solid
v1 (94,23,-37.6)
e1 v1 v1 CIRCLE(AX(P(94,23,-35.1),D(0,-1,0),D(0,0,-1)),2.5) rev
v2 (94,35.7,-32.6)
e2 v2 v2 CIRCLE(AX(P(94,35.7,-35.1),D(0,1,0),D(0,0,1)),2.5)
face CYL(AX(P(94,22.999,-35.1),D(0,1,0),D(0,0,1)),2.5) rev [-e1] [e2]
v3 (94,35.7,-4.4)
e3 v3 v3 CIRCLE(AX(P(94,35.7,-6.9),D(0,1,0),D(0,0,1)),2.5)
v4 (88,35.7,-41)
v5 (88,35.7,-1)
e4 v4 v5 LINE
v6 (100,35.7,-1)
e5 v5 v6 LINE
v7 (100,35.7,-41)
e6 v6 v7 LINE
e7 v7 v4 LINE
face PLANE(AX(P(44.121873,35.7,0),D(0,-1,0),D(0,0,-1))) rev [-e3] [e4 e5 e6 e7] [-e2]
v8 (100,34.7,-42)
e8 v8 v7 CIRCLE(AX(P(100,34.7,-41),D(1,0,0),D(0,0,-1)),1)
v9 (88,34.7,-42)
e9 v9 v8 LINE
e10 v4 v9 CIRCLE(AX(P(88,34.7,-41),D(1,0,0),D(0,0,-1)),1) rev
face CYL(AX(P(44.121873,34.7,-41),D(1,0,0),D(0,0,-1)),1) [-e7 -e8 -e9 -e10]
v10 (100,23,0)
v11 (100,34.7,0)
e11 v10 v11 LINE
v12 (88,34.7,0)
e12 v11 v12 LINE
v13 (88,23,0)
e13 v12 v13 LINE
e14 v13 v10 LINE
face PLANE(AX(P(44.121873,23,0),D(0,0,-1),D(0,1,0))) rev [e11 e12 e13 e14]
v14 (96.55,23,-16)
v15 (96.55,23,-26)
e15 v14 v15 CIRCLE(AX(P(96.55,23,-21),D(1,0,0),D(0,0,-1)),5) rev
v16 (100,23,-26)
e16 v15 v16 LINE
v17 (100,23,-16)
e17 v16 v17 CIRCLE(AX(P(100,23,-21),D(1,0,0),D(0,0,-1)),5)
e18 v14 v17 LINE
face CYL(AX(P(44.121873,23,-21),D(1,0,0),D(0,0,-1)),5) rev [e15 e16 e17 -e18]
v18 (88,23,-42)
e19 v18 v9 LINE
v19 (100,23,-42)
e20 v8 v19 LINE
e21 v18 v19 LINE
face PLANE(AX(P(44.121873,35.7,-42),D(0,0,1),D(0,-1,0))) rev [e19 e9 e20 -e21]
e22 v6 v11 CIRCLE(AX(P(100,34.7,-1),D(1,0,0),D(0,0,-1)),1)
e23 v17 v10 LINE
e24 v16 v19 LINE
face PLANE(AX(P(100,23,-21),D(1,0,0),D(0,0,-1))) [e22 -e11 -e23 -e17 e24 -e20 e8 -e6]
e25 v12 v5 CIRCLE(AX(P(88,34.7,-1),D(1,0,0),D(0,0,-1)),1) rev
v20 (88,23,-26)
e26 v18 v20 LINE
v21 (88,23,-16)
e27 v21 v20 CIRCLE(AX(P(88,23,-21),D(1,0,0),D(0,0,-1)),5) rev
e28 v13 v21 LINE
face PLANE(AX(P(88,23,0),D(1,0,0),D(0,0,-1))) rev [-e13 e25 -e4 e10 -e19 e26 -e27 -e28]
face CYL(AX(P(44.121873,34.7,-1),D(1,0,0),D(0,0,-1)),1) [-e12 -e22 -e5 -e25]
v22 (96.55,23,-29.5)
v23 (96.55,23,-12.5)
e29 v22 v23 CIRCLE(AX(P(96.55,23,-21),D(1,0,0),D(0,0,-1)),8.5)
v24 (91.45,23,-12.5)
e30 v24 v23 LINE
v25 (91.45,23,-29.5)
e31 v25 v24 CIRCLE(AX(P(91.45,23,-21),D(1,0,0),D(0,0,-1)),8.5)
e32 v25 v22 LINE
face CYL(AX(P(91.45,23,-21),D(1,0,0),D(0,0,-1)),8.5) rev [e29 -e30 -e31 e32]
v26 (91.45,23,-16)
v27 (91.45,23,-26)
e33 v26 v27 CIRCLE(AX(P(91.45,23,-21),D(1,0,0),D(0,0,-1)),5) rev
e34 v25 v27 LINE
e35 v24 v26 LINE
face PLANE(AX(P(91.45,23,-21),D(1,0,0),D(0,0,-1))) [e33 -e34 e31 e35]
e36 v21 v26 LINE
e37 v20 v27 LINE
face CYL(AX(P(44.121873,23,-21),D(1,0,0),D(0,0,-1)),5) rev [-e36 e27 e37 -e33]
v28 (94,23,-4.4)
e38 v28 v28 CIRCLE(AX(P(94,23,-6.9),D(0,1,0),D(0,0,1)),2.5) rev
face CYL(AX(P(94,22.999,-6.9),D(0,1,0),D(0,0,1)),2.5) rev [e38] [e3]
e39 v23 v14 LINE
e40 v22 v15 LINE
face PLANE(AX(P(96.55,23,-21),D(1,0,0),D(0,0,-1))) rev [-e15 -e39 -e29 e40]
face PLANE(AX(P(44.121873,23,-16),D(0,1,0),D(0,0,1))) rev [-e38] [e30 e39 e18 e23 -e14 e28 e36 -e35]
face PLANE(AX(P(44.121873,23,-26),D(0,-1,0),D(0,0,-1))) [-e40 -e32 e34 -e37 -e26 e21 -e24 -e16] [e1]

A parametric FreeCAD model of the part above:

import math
import FreeCAD as App
import Part
import Sketcher
from FreeCAD import Vector


def edges_at(feature, points):
    """Names of the edges that pass closest to the given points."""
    edges = feature.Shape.Edges
    near = lambda p: min(range(len(edges)), key=lambda i: edges[i].distToShape(Part.Vertex(*p))[0])
    return sorted({f"Edge{near(p) + 1}" for p in points})

doc = App.newDocument("Part")
body = doc.addObject("PartDesign::Body", "Body")

# Sketch on YZ plane
sketch1 = doc.addObject("Sketcher::SketchObject", "Sketch")
body.addObject(sketch1)
sketch1.AttachmentSupport = (doc.YZ_Plane, [""])
sketch1.MapMode = "FlatFace"
sketch1.AttachmentOffset = App.Placement(Vector(0, 0, 100), App.Rotation())
sketch1.addGeometry([
    Part.LineSegment(Vector(35.7, 0, 0), Vector(23, 0, 0)),  # 0
    Part.LineSegment(Vector(23, 0, 0), Vector(23, -16, 0)),  # 1
    Part.ArcOfCircle(Part.Circle(Vector(23, -21, 0), Vector(0, 0, 1), 5), math.radians(-90), math.radians(90)),  # 2
    Part.LineSegment(Vector(23, -26, 0), Vector(23, -42, 0)),  # 3
    Part.LineSegment(Vector(23, -42, 0), Vector(35.7, -42, 0)),  # 4
    Part.LineSegment(Vector(35.7, -42, 0), Vector(35.7, 0, 0)),  # 5
], False)
sketch1.addConstraint([
    Sketcher.Constraint("Coincident", 0, 2, 1, 1),
    Sketcher.Constraint("Coincident", 1, 2, 2, 2),
    Sketcher.Constraint("Coincident", 2, 1, 3, 1),
    Sketcher.Constraint("Coincident", 3, 2, 4, 1),
    Sketcher.Constraint("Coincident", 4, 2, 5, 1),
    Sketcher.Constraint("Coincident", 5, 2, 0, 1),
    Sketcher.Constraint("Horizontal", 0),
    Sketcher.Constraint("Vertical", 1),
    Sketcher.Constraint("Vertical", 3),
    Sketcher.Constraint("Horizontal", 4),
    Sketcher.Constraint("Vertical", 5),
    Sketcher.Constraint("PointOnObject", 0, 2, -1),
    Sketcher.Constraint("Vertical", 2, 3, 0, 2),
    Sketcher.Constraint("Vertical", 1, 2, 2, 1),
    Sketcher.Constraint("Equal", 1, 3),
    Sketcher.Constraint("Radius", 2, 5.0),
    Sketcher.Constraint("DistanceY", 1, 2, 1, 1, 16.0),
    Sketcher.Constraint("DistanceX", 0, 2, 0, 1, 12.7),
    Sketcher.Constraint("DistanceX", -1, 1, 2, 3, 23.0),
])
pad1 = doc.addObject("PartDesign::Pad", "Pad")
body.addObject(pad1)
pad1.Profile = sketch1
pad1.Length = 12
pad1.Reversed = True

# Sketch on YZ plane
sketch2 = doc.addObject("Sketcher::SketchObject", "Sketch001")
body.addObject(sketch2)
sketch2.AttachmentSupport = (doc.YZ_Plane, [""])
sketch2.MapMode = "FlatFace"
sketch2.AttachmentOffset = App.Placement(Vector(0, 0, 94), App.Rotation())
sketch2.addGeometry(Part.Circle(Vector(23, -21, 0), Vector(0, 0, 1), 8.5), False)
sketch2.addConstraint([
    Sketcher.Constraint("Diameter", 0, 17.0),
    Sketcher.Constraint("DistanceX", -1, 1, 0, 3, 23.0),
    Sketcher.Constraint("DistanceY", 0, 3, -1, 1, 21.0),
])
pocket1 = doc.addObject("PartDesign::Pocket", "Pocket")
body.addObject(pocket1)
pocket1.Profile = sketch2
pocket1.Length = 5.1
pocket1.Midplane = True

# Sketch on XZ plane
sketch3 = doc.addObject("Sketcher::SketchObject", "Sketch002")
body.addObject(sketch3)
sketch3.AttachmentSupport = (doc.XZ_Plane, [""])
sketch3.MapMode = "FlatFace"
sketch3.AttachmentOffset = App.Placement(Vector(0, 0, -35.7), App.Rotation())
sketch3.addGeometry(Part.Circle(Vector(94, -35.1, 0), Vector(0, 0, 1), 2.5), False)
sketch3.addConstraint([
    Sketcher.Constraint("Diameter", 0, 5.0),
    Sketcher.Constraint("DistanceX", -1, 1, 0, 3, 94.0),
    Sketcher.Constraint("DistanceY", 0, 3, -1, 1, 35.1),
])
pocket2 = doc.addObject("PartDesign::Pocket", "Pocket001")
body.addObject(pocket2)
pocket2.Profile = sketch3
pocket2.Type = "UpToFirst"
pocket2.Reversed = True

# Sketch on XZ plane
sketch4 = doc.addObject("Sketcher::SketchObject", "Sketch003")
body.addObject(sketch4)
sketch4.AttachmentSupport = (doc.XZ_Plane, [""])
sketch4.MapMode = "FlatFace"
sketch4.AttachmentOffset = App.Placement(Vector(0, 0, -35.7), App.Rotation())
sketch4.addGeometry(Part.Circle(Vector(94, -6.9, 0), Vector(0, 0, 1), 2.5), False)
sketch4.addConstraint([
    Sketcher.Constraint("Diameter", 0, 5.0),
    Sketcher.Constraint("DistanceX", -1, 1, 0, 3, 94.0),
    Sketcher.Constraint("DistanceY", 0, 3, -1, 1, 6.9),
])
pocket3 = doc.addObject("PartDesign::Pocket", "Pocket002")
body.addObject(pocket3)
pocket3.Profile = sketch4
pocket3.Type = "UpToFirst"
pocket3.Reversed = True
doc.recompute()

fillet = doc.addObject("PartDesign::Fillet", "Fillet")
body.addObject(fillet)
fillet.Base = (pocket3, edges_at(pocket3, [(94, 35.7, 0), (94, 35.7, -42)]))
fillet.Radius = 1

doc.recompute()
